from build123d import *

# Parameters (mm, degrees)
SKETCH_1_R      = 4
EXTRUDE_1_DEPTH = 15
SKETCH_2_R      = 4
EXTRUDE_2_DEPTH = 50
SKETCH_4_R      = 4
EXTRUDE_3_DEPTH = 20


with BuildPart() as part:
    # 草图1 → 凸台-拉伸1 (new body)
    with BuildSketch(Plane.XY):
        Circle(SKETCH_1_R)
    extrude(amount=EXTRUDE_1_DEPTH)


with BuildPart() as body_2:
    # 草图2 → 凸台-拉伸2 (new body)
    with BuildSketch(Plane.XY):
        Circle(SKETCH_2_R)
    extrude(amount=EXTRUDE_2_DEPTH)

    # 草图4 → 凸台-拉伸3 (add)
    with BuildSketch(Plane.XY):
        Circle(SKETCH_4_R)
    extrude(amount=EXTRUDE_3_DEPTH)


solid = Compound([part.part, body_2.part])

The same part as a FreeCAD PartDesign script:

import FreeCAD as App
import Part
import Sketcher
from FreeCAD import Vector
Q = App.Units.Quantity

doc = App.newDocument("Part")
body = doc.addObject("PartDesign::Body", "Body")

# Sketch on XY plane
sketch1 = body.newObject("Sketcher::SketchObject", "Sketch")
sketch1.AttachmentSupport = (doc.getObject("XY_Plane"), [""])
sketch1.MapMode = "FlatFace"
sketch1.addGeometry(Part.Circle(Vector(0, 0, 0), Vector(0, 0, 1), 4), False)
sketch1.addConstraint([
    Sketcher.Constraint("Coincident", 0, 3, -1, 1),
    Sketcher.Constraint("Diameter", 0, Q("8 mm")),
])
pad1 = body.newObject("PartDesign::Pad", "Pad")
pad1.Profile = sketch1
pad1.Length = 15
body2 = doc.addObject("PartDesign::Body", "Body001")

# Sketch on XY plane
sketch2 = body2.newObject("Sketcher::SketchObject", "Sketch001")
sketch2.AttachmentSupport = (doc.getObject("XY_Plane001"), [""])
sketch2.MapMode = "FlatFace"
sketch2.addGeometry(Part.Circle(Vector(0, 0, 0), Vector(0, 0, 1), 4), False)
sketch2.addConstraint([
    Sketcher.Constraint("Coincident", 0, 3, -1, 1),
    Sketcher.Constraint("Diameter", 0, Q("8 mm")),
])
pad2 = body2.newObject("PartDesign::Pad", "Pad001")
pad2.Profile = sketch2
pad2.Length = 50

# Sketch on XY plane
sketch3 = body2.newObject("Sketcher::SketchObject", "Sketch002")
sketch3.AttachmentSupport = (doc.getObject("XY_Plane001"), [""])
sketch3.MapMode = "FlatFace"
sketch3.addGeometry(Part.Circle(Vector(0, 0, 0), Vector(0, 0, 1), 4), False)
sketch3.addConstraint([
    Sketcher.Constraint("Coincident", 0, 3, -1, 1),
    Sketcher.Constraint("Diameter", 0, Q("8 mm")),
])
pad3 = body2.newObject("PartDesign::Pad", "Pad002")
pad3.Profile = sketch3
pad3.Length = 20

doc.recompute()
